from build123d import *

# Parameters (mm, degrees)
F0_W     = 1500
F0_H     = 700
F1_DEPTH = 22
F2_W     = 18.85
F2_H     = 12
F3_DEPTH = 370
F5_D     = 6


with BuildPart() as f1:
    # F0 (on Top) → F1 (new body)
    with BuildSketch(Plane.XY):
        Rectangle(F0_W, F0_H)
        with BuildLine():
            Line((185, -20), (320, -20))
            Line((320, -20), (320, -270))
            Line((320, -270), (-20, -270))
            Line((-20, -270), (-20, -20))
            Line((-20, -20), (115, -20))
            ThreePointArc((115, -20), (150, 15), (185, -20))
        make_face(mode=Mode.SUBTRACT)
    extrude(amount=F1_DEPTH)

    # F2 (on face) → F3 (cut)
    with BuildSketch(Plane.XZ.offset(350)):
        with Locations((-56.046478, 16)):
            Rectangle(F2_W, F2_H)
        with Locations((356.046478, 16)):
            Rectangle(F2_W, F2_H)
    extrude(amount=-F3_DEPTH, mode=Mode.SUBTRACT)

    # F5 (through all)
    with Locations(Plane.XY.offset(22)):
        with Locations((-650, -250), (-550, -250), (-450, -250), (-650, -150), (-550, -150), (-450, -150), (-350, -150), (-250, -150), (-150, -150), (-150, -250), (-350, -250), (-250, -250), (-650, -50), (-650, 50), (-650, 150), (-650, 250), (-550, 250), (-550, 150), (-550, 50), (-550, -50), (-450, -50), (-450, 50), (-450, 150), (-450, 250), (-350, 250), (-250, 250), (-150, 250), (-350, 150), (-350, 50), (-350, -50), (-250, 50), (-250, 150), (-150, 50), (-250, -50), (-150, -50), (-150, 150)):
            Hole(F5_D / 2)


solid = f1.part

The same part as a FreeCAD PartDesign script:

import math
import FreeCAD as App
import Part
import Sketcher

V = App.Vector
Q = App.Units.Quantity


def add_polygon(sketch, points):
    """Adds a closed chain of lines whose ends are joined by coincident constraints."""
    first, n = sketch.GeometryCount, len(points)
    for a, b in zip(points, points[1:] + points[:1]):
        sketch.addGeometry(Part.LineSegment(App.Vector(*a, 0), App.Vector(*b, 0)), False)
    for i in range(n):
        sketch.addConstraint(Sketcher.Constraint("Coincident", first + i, 2, first + (i + 1) % n, 1))

doc = App.newDocument("Part")
params = doc.addObject("Spreadsheet::Sheet", "Params")
for row, (alias, value) in enumerate([
    ("sketch1_radius", "35 mm"),
    ("sketch1_width", "1500 mm"),
    ("sketch1_width2", "135 mm"),
    ("sketch1_height", "700 mm"),
    ("sketch1_height2", "250 mm"),
    ("pad1_length", "22 mm"),
    ("sketch2_height", "12 mm"),
    ("sketch2_width", "18.85 mm"),
    ("pocket1_length", "370 mm"),
    ("sketch3_diameter", "6 mm"),
    ("hole_diameter", "6 mm"),
], start=1):
    params.set(f"A{row}", alias)
    params.set(f"B{row}", "=" + value)
    params.setAlias(f"B{row}", alias)

body = doc.addObject("PartDesign::Body", "Body")

# Sketch on XY plane
sketch1 = body.newObject("Sketcher::SketchObject", "Sketch")
sketch1.AttachmentSupport = (doc.getObject("XY_Plane"), [""])
sketch1.MapMode = "FlatFace"
add_polygon(sketch1, [(-750, 350), (-750, -350), (750, -350), (750, 350)])  # lines 0-3
sketch1.addGeometry(Part.ArcOfCircle(Part.Circle(V(150, -20, 0), V(0, 0, 1), 35), math.radians(0), math.radians(180)), False)  # 4
sketch1.addGeometry(Part.LineSegment(V(185, -20, 0), V(320, -20, 0)), False)  # 5
sketch1.addGeometry(Part.LineSegment(V(320, -20, 0), V(320, -270, 0)), False)  # 6
sketch1.addGeometry(Part.LineSegment(V(320, -270, 0), V(-20, -270, 0)), False)  # 7
sketch1.addGeometry(Part.LineSegment(V(-20, -270, 0), V(-20, -20, 0)), False)  # 8
sketch1.addGeometry(Part.LineSegment(V(-20, -20, 0), V(115, -20, 0)), False)  # 9
sketch1.addConstraint(Sketcher.Constraint("Coincident", 4, 1, 5, 1))
sketch1.addConstraint(Sketcher.Constraint("Coincident", 5, 2, 6, 1))
sketch1.addConstraint(Sketcher.Constraint("Coincident", 6, 2, 7, 1))
sketch1.addConstraint(Sketcher.Constraint("Coincident", 7, 2, 8, 1))
sketch1.addConstraint(Sketcher.Constraint("Coincident", 8, 2, 9, 1))
sketch1.addConstraint(Sketcher.Constraint("Coincident", 9, 2, 4, 2))
sketch1.addConstraint(Sketcher.Constraint("Vertical", 0))
sketch1.addConstraint(Sketcher.Constraint("Horizontal", 1))
sketch1.addConstraint(Sketcher.Constraint("Vertical", 2))
sketch1.addConstraint(Sketcher.Constraint("Horizontal", 3))
sketch1.addConstraint(Sketcher.Constraint("Horizontal", 5))
sketch1.addConstraint(Sketcher.Constraint("Vertical", 6))
sketch1.addConstraint(Sketcher.Constraint("Horizontal", 7))
sketch1.addConstraint(Sketcher.Constraint("Vertical", 8))
sketch1.addConstraint(Sketcher.Constraint("Horizontal", 9))
sketch1.addConstraint(Sketcher.Constraint("Symmetric", 0, 2, 2, 2, -1, 1))
sketch1.addConstraint(Sketcher.Constraint("Horizontal", 5, 2, 8, 2))
sketch1.addConstraint(Sketcher.Constraint("Equal", 5, 9))
sketch1.addConstraint(Sketcher.Constraint("Radius", 4, Q("35 mm")))
sketch1.addConstraint(Sketcher.Constraint("DistanceX", 1, 1, 1, 2, Q("1500 mm")))
sketch1.addConstraint(Sketcher.Constraint("DistanceX", 5, 1, 5, 2, Q("135 mm")))
sketch1.addConstraint(Sketcher.Constraint("DistanceY", 0, 2, 0, 1, Q("700 mm")))
sketch1.addConstraint(Sketcher.Constraint("DistanceY", 6, 2, 6, 1, Q("250 mm")))
sketch1.addConstraint(Sketcher.Constraint("DistanceX", -1, 1, 4, 3, Q("150 mm")))
sketch1.addConstraint(Sketcher.Constraint("DistanceY", 4, 3, -1, 1, Q("20 mm")))
sketch1.addConstraint(Sketcher.Constraint("DistanceY", 4, 1, -1, 1, Q("20 mm")))
sketch1.setExpression("Constraints[22]", "Params.sketch1_radius")
sketch1.setExpression("Constraints[23]", "Params.sketch1_width")
sketch1.setExpression("Constraints[24]", "Params.sketch1_width2")
sketch1.setExpression("Constraints[25]", "Params.sketch1_height")
sketch1.setExpression("Constraints[26]", "Params.sketch1_height2")
pad1 = body.newObject("PartDesign::Pad", "Pad")
pad1.Profile = sketch1
pad1.setExpression("Length", "Params.pad1_length")

# Sketch on XZ plane
sketch2 = body.newObject("Sketcher::SketchObject", "Sketch001")
sketch2.AttachmentSupport = (doc.getObject("XZ_Plane"), [""])
sketch2.MapMode = "FlatFace"
sketch2.AttachmentOffset = App.Placement(V(0, 0, 350), App.Rotation())
add_polygon(sketch2, [(-65.471478, 22), (-65.471478, 10), (-46.621478, 10), (-46.621478, 22)])  # lines 0-3
add_polygon(sketch2, [(346.621478, 22), (346.621478, 10), (365.471478, 10), (365.471478, 22)])  # lines 4-7
sketch2.addConstraint(Sketcher.Constraint("Vertical", 0))
sketch2.addConstraint(Sketcher.Constraint("Horizontal", 1))
sketch2.addConstraint(Sketcher.Constraint("Vertical", 2))
sketch2.addConstraint(Sketcher.Constraint("Horizontal", 3))
sketch2.addConstraint(Sketcher.Constraint("Vertical", 4))
sketch2.addConstraint(Sketcher.Constraint("Horizontal", 5))
sketch2.addConstraint(Sketcher.Constraint("Vertical", 6))
sketch2.addConstraint(Sketcher.Constraint("Horizontal", 7))
sketch2.addConstraint(Sketcher.Constraint("Horizontal", 1, 2, 4, 2))
sketch2.addConstraint(Sketcher.Constraint("Horizontal", 3, 2, 6, 2))
sketch2.addConstraint(Sketcher.Constraint("Equal", 3, 5))
sketch2.addConstraint(Sketcher.Constraint("DistanceY", 0, 2, 0, 1, Q("12 mm")))
sketch2.addConstraint(Sketcher.Constraint("DistanceY", -1, 1, 0, 2, Q("10 mm")))
sketch2.addConstraint(Sketcher.Constraint("DistanceX", 1, 1, 1, 2, Q("18.85 mm")))
sketch2.addConstraint(Sketcher.Constraint("DistanceX", 0, 2, -1, 1, Q("65.471478 mm")))
sketch2.addConstraint(Sketcher.Constraint("DistanceX", -1, 1, 4, 2, Q("346.621478 mm")))
sketch2.setExpression("Constraints[19]", "Params.sketch2_height")
sketch2.setExpression("Constraints[21]", "Params.sketch2_width")
pocket1 = body.newObject("PartDesign::Pocket", "Pocket")
pocket1.Profile = sketch2
pocket1.setExpression("Length", "Params.pocket1_length")

# Sketch on XY plane
sketch3 = body.newObject("Sketcher::SketchObject", "Sketch002")
sketch3.AttachmentSupport = (doc.getObject("XY_Plane"), [""])
sketch3.MapMode = "FlatFace"
sketch3.AttachmentOffset = App.Placement(V(0, 0, 22), App.Rotation())
sketch3.addGeometry(Part.Circle(V(-650, -250, 0), V(0, 0, 1), 3), False)
sketch3.addGeometry(Part.Circle(V(-550, -250, 0), V(0, 0, 1), 3), False)
sketch3.addGeometry(Part.Circle(V(-450, -250, 0), V(0, 0, 1), 3), False)
sketch3.addGeometry(Part.Circle(V(-650, -150, 0), V(0, 0, 1), 3), False)
sketch3.addGeometry(Part.Circle(V(-550, -150, 0), V(0, 0, 1), 3), False)
sketch3.addGeometry(Part.Circle(V(-450, -150, 0), V(0, 0, 1), 3), False)
sketch3.addGeometry(Part.Circle(V(-350, -150, 0), V(0, 0, 1), 3), False)
sketch3.addGeometry(Part.Circle(V(-250, -150, 0), V(0, 0, 1), 3), False)
sketch3.addGeometry(Part.Circle(V(-150, -150, 0), V(0, 0, 1), 3), False)
sketch3.addGeometry(Part.Circle(V(-150, -250, 0), V(0, 0, 1), 3), False)
sketch3.addGeometry(Part.Circle(V(-350, -250, 0), V(0, 0, 1), 3), False)
sketch3.addGeometry(Part.Circle(V(-250, -250, 0), V(0, 0, 1), 3), False)
sketch3.addGeometry(Part.Circle(V(-650, -50, 0), V(0, 0, 1), 3), False)
sketch3.addGeometry(Part.Circle(V(-650, 50, 0), V(0, 0, 1), 3), False)
sketch3.addGeometry(Part.Circle(V(-650, 150, 0), V(0, 0, 1), 3), False)
sketch3.addGeometry(Part.Circle(V(-650, 250, 0), V(0, 0, 1), 3), False)
sketch3.addGeometry(Part.Circle(V(-550, 250, 0), V(0, 0, 1), 3), False)
sketch3.addGeometry(Part.Circle(V(-550, 150, 0), V(0, 0, 1), 3), False)
sketch3.addGeometry(Part.Circle(V(-550, 50, 0), V(0, 0, 1), 3), False)
sketch3.addGeometry(Part.Circle(V(-550, -50, 0), V(0, 0, 1), 3), False)
sketch3.addGeometry(Part.Circle(V(-450, -50, 0), V(0, 0, 1), 3), False)
sketch3.addGeometry(Part.Circle(V(-450, 50, 0), V(0, 0, 1), 3), False)
sketch3.addGeometry(Part.Circle(V(-450, 150, 0), V(0, 0, 1), 3), False)
sketch3.addGeometry(Part.Circle(V(-450, 250, 0), V(0, 0, 1), 3), False)
sketch3.addGeometry(Part.Circle(V(-350, 250, 0), V(0, 0, 1), 3), False)
sketch3.addGeometry(Part.Circle(V(-250, 250, 0), V(0, 0, 1), 3), False)
sketch3.addGeometry(Part.Circle(V(-150, 250, 0), V(0, 0, 1), 3), False)
sketch3.addGeometry(Part.Circle(V(-350, 150, 0), V(0, 0, 1), 3), False)
sketch3.addGeometry(Part.Circle(V(-350, 50, 0), V(0, 0, 1), 3), False)
sketch3.addGeometry(Part.Circle(V(-350, -50, 0), V(0, 0, 1), 3), False)
sketch3.addGeometry(Part.Circle(V(-250, 50, 0), V(0, 0, 1), 3), False)
sketch3.addGeometry(Part.Circle(V(-250, 150, 0), V(0, 0, 1), 3), False)
sketch3.addGeometry(Part.Circle(V(-150, 50, 0), V(0, 0, 1), 3), False)
sketch3.addGeometry(Part.Circle(V(-250, -50, 0), V(0, 0, 1), 3), False)
sketch3.addGeometry(Part.Circle(V(-150, -50, 0), V(0, 0, 1), 3), False)
sketch3.addGeometry(Part.Circle(V(-150, 150, 0), V(0, 0, 1), 3), False)
sketch3.addConstraint(Sketcher.Constraint("Equal", 0, 1))
sketch3.addConstraint(Sketcher.Constraint("Equal", 1, 2))
sketch3.addConstraint(Sketcher.Constraint("Equal", 2, 3))
sketch3.addConstraint(Sketcher.Constraint("Equal", 3, 4))
sketch3.addConstraint(Sketcher.Constraint("Equal", 4, 5))
sketch3.addConstraint(Sketcher.Constraint("Equal", 5, 6))
sketch3.addConstraint(Sketcher.Constraint("Equal", 6, 7))
sketch3.addConstraint(Sketcher.Constraint("Equal", 7, 8))
sketch3.addConstraint(Sketcher.Constraint("Equal", 8, 9))
sketch3.addConstraint(Sketcher.Constraint("Equal", 9, 10))
sketch3.addConstraint(Sketcher.Constraint("Equal", 10, 11))
sketch3.addConstraint(Sketcher.Constraint("Equal", 11, 12))
sketch3.addConstraint(Sketcher.Constraint("Equal", 12, 13))
sketch3.addConstraint(Sketcher.Constraint("Equal", 13, 14))
sketch3.addConstraint(Sketcher.Constraint("Equal", 14, 15))
sketch3.addConstraint(Sketcher.Constraint("Equal", 15, 16))
sketch3.addConstraint(Sketcher.Constraint("Equal", 16, 17))
sketch3.addConstraint(Sketcher.Constraint("Equal", 17, 18))
sketch3.addConstraint(Sketcher.Constraint("Equal", 18, 19))
sketch3.addConstraint(Sketcher.Constraint("Equal", 19, 20))
sketch3.addConstraint(Sketcher.Constraint("Equal", 20, 21))
sketch3.addConstraint(Sketcher.Constraint("Equal", 21, 22))
sketch3.addConstraint(Sketcher.Constraint("Equal", 22, 23))
sketch3.addConstraint(Sketcher.Constraint("Equal", 23, 24))
sketch3.addConstraint(Sketcher.Constraint("Equal", 24, 25))
sketch3.addConstraint(Sketcher.Constraint("Equal", 25, 26))
sketch3.addConstraint(Sketcher.Constraint("Equal", 26, 27))
sketch3.addConstraint(Sketcher.Constraint("Equal", 27, 28))
sketch3.addConstraint(Sketcher.Constraint("Equal", 28, 29))
sketch3.addConstraint(Sketcher.Constraint("Equal", 29, 30))
sketch3.addConstraint(Sketcher.Constraint("Equal", 30, 31))
sketch3.addConstraint(Sketcher.Constraint("Equal", 31, 32))
sketch3.addConstraint(Sketcher.Constraint("Equal", 32, 33))
sketch3.addConstraint(Sketcher.Constraint("Equal", 33, 34))
sketch3.addConstraint(Sketcher.Constraint("Equal", 34, 35))
sketch3.addConstraint(Sketcher.Constraint("Symmetric", 12, 3, 13, 3, -1))
sketch3.addConstraint(Sketcher.Constraint("Symmetric", 3, 3, 14, 3, -1))
sketch3.addConstraint(Sketcher.Constraint("Symmetric", 0, 3, 15, 3, -1))
sketch3.addConstraint(Sketcher.Constraint("Symmetric", 1, 3, 16, 3, -1))
sketch3.addConstraint(Sketcher.Constraint("Symmetric", 4, 3, 17, 3, -1))
sketch3.addConstraint(Sketcher.Constraint("Symmetric", 18, 3, 19, 3, -1))
sketch3.addConstraint(Sketcher.Constraint("Symmetric", 20, 3, 21, 3, -1))
sketch3.addConstraint(Sketcher.Constraint("Symmetric", 5, 3, 22, 3, -1))
sketch3.addConstraint(Sketcher.Constraint("Symmetric", 2, 3, 23, 3, -1))
sketch3.addConstraint(Sketcher.Constraint("Symmetric", 10, 3, 24, 3, -1))
sketch3.addConstraint(Sketcher.Constraint("Symmetric", 11, 3, 25, 3, -1))
sketch3.addConstraint(Sketcher.Constraint("Symmetric", 9, 3, 26, 3, -1))
sketch3.addConstraint(Sketcher.Constraint("Symmetric", 6, 3, 27, 3, -1))
sketch3.addConstraint(Sketcher.Constraint("Symmetric", 28, 3, 29, 3, -1))
sketch3.addConstraint(Sketcher.Constraint("Symmetric", 7, 3, 31, 3, -1))
sketch3.addConstraint(Sketcher.Constraint("Symmetric", 30, 3, 33, 3, -1))
sketch3.addConstraint(Sketcher.Constraint("Symmetric", 32, 3, 34, 3, -1))
sketch3.addConstraint(Sketcher.Constraint("Symmetric", 8, 3, 35, 3, -1))
sketch3.addConstraint(Sketcher.Constraint("Horizontal", 0, 3, 1, 3))
sketch3.addConstraint(Sketcher.Constraint("Horizontal", 1, 3, 2, 3))
sketch3.addConstraint(Sketcher.Constraint("Horizontal", 3, 3, 4, 3))
sketch3.addConstraint(Sketcher.Constraint("Horizontal", 4, 3, 5, 3))
sketch3.addConstraint(Sketcher.Constraint("Horizontal", 5, 3, 6, 3))
sketch3.addConstraint(Sketcher.Constraint("Horizontal", 6, 3, 7, 3))
sketch3.addConstraint(Sketcher.Constraint("Horizontal", 7, 3, 8, 3))
sketch3.addConstraint(Sketcher.Constraint("Horizontal", 2, 3, 9, 3))
sketch3.addConstraint(Sketcher.Constraint("Horizontal", 9, 3, 10, 3))
sketch3.addConstraint(Sketcher.Constraint("Horizontal", 10, 3, 11, 3))
sketch3.addConstraint(Sketcher.Constraint("Horizontal", 13, 3, 18, 3))
sketch3.addConstraint(Sketcher.Constraint("Horizontal", 19, 3, 20, 3))
sketch3.addConstraint(Sketcher.Constraint("Horizontal", 21, 3, 28, 3))
sketch3.addConstraint(Sketcher.Constraint("Horizontal", 28, 3, 30, 3))
sketch3.addConstraint(Sketcher.Constraint("Horizontal", 30, 3, 32, 3))
sketch3.addConstraint(Sketcher.Constraint("Vertical", 0, 3, 3, 3))
sketch3.addConstraint(Sketcher.Constraint("Vertical", 1, 3, 4, 3))
sketch3.addConstraint(Sketcher.Constraint("Vertical", 2, 3, 5, 3))
sketch3.addConstraint(Sketcher.Constraint("Vertical", 8, 3, 9, 3))
sketch3.addConstraint(Sketcher.Constraint("Vertical", 6, 3, 10, 3))
sketch3.addConstraint(Sketcher.Constraint("Vertical", 7, 3, 11, 3))
sketch3.addConstraint(Sketcher.Constraint("Vertical", 3, 3, 12, 3))
sketch3.addConstraint(Sketcher.Constraint("Vertical", 17, 3, 18, 3))
sketch3.addConstraint(Sketcher.Constraint("Vertical", 5, 3, 20, 3))
sketch3.addConstraint(Sketcher.Constraint("Vertical", 27, 3, 28, 3))
sketch3.addConstraint(Sketcher.Constraint("Vertical", 25, 3, 30, 3))
sketch3.addConstraint(Sketcher.Constraint("Vertical", 26, 3, 32, 3))
sketch3.addConstraint(Sketcher.Constraint("Diameter", 0, Q("6 mm")))
sketch3.addConstraint(Sketcher.Constraint("DistanceX", 0, 3, -1, 1, Q("650 mm")))
sketch3.addConstraint(Sketcher.Constraint("DistanceY", 0, 3, -1, 1, Q("250 mm")))
sketch3.addConstraint(Sketcher.Constraint("DistanceX", 1, 3, -1, 1, Q("550 mm")))
sketch3.addConstraint(Sketcher.Constraint("DistanceX", 2, 3, -1, 1, Q("450 mm")))
sketch3.addConstraint(Sketcher.Constraint("DistanceY", 3, 3, -1, 1, Q("150 mm")))
sketch3.addConstraint(Sketcher.Constraint("DistanceX", 6, 3, -1, 1, Q("350 mm")))
sketch3.addConstraint(Sketcher.Constraint("DistanceX", 7, 3, -1, 1, Q("250 mm")))
sketch3.addConstraint(Sketcher.Constraint("DistanceX", 8, 3, -1, 1, Q("150 mm")))
sketch3.addConstraint(Sketcher.Constraint("DistanceY", 12, 3, -1, 1, Q("50 mm")))
sketch3.setExpression("Constraints[80]", "Params.sketch3_diameter")
doc.recompute()
hole = body.newObject("PartDesign::Hole", "Hole")
hole.Profile = sketch3
hole.ThreadType = "None"
hole.setExpression("Diameter", "Params.hole_diameter")
hole.DepthType = "ThroughAll"

doc.recompute()
